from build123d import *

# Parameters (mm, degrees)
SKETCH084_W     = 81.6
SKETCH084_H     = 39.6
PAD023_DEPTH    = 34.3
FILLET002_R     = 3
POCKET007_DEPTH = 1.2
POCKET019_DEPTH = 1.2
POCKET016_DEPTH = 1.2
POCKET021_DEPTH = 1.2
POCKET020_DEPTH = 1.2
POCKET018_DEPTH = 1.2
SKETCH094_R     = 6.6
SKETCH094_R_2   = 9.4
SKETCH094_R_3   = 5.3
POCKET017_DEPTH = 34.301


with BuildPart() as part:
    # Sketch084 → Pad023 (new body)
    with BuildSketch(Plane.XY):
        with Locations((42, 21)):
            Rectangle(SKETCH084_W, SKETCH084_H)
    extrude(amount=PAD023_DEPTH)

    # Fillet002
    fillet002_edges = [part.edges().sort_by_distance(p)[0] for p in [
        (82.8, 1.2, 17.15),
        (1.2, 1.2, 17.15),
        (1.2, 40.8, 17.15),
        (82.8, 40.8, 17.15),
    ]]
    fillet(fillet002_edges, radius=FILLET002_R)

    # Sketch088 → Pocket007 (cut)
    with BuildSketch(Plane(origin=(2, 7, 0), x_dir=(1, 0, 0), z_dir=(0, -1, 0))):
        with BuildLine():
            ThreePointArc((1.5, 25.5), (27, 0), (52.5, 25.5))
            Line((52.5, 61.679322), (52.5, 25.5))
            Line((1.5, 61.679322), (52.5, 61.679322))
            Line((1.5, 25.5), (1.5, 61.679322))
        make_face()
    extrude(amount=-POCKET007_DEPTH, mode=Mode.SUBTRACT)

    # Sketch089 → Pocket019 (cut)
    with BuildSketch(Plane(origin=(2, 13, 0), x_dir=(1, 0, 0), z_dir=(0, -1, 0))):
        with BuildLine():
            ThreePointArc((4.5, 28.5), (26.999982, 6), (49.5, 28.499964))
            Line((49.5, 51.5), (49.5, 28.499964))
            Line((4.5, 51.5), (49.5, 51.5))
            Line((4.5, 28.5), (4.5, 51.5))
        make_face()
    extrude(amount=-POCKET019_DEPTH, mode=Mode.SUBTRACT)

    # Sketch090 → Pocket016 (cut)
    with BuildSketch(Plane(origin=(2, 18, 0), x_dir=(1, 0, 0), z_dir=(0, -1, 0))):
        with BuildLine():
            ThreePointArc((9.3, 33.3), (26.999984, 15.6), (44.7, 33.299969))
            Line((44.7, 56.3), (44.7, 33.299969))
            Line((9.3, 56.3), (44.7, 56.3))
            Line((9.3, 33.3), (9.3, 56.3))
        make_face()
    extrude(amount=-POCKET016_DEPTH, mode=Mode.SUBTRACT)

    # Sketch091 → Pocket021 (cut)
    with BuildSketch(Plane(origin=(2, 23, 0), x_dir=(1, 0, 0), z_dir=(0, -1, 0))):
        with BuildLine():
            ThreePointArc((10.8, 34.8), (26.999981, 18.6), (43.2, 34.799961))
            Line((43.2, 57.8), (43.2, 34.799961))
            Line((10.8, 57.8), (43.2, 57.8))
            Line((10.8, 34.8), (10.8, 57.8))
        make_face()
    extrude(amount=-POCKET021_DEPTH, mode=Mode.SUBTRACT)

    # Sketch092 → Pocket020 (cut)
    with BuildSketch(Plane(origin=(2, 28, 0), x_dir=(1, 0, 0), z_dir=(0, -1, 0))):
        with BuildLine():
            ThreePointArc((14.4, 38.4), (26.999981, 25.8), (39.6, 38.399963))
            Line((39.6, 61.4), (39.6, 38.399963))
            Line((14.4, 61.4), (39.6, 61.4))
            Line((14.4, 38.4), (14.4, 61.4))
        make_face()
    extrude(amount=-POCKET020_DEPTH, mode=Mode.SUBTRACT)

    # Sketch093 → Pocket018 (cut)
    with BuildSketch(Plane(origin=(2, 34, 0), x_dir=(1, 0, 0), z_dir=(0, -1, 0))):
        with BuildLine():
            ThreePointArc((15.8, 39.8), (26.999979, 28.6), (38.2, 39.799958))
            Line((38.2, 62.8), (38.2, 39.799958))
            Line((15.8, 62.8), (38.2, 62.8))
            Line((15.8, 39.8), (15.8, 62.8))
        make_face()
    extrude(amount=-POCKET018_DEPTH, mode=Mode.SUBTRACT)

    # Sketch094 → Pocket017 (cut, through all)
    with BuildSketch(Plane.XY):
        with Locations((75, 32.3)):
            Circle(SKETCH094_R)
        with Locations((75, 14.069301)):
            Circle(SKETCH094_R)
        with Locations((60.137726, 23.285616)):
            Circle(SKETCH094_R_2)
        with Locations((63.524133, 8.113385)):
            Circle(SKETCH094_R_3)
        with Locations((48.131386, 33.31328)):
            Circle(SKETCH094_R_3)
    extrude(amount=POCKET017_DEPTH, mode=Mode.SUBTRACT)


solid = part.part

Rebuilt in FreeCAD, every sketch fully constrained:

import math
import FreeCAD as App
import Part
import Sketcher

V = App.Vector


def edges_at(feature, points):
    """Names of the edges that pass closest to the given points."""
    edges = feature.Shape.Edges
    near = lambda p: min(range(len(edges)), key=lambda i: edges[i].distToShape(Part.Vertex(*p))[0])
    return sorted({f"Edge{near(p) + 1}" for p in points})


def add_polygon(sketch, points):
    """Adds a closed chain of lines whose ends are joined by coincident constraints."""
    first, n = sketch.GeometryCount, len(points)
    for a, b in zip(points, points[1:] + points[:1]):
        sketch.addGeometry(Part.LineSegment(App.Vector(*a, 0), App.Vector(*b, 0)), False)
    for i in range(n):
        sketch.addConstraint(Sketcher.Constraint("Coincident", first + i, 2, first + (i + 1) % n, 1))

doc = App.newDocument("Part")
params = doc.addObject("Spreadsheet::Sheet", "Params")
for row, (alias, value) in enumerate([
    ("sketch1_width", "81.6 mm"),
    ("sketch1_height", "39.6 mm"),
    ("pad1_length", "34.3 mm"),
    ("fillet_radius", "3 mm"),
    ("sketch2_radius", "25.5 mm"),
    ("pocket1_length", "1.2 mm"),
    ("sketch3_radius", "22.5 mm"),
    ("sketch3_height", "23 mm"),
    ("pocket2_length", "1.2 mm"),
    ("sketch4_radius", "17.7 mm"),
    ("sketch4_height", "23 mm"),
    ("pocket3_length", "1.2 mm"),
    ("sketch5_radius", "16.2 mm"),
    ("sketch5_height", "23 mm"),
    ("pocket4_length", "1.2 mm"),
    ("sketch6_radius", "12.6 mm"),
    ("sketch6_height", "23 mm"),
    ("pocket5_length", "1.2 mm"),
    ("sketch7_radius", "11.2 mm"),
    ("sketch7_height", "23 mm"),
    ("pocket6_length", "1.2 mm"),
    ("sketch8_diameter", "13.2 mm"),
    ("sketch8_diameter2", "18.8 mm"),
    ("sketch8_diameter3", "10.6 mm"),
], start=1):
    params.set(f"A{row}", alias)
    params.set(f"B{row}", "=" + value)
    params.setAlias(f"B{row}", alias)

body = doc.addObject("PartDesign::Body", "Body")

sketch1 = doc.addObject("Sketcher::SketchObject", "Sketch")
body.addObject(sketch1)
sketch1.AttachmentSupport = (doc.XY_Plane, [""])
sketch1.MapMode = "FlatFace"
add_polygon(sketch1, [(1.2, 40.8), (1.2, 1.2), (82.8, 1.2), (82.8, 40.8)])
sketch1.addConstraint([
    Sketcher.Constraint("Vertical", 0),
    Sketcher.Constraint("Horizontal", 1),
    Sketcher.Constraint("Vertical", 2),
    Sketcher.Constraint("Horizontal", 3),
    Sketcher.Constraint("DistanceX", 1, 1, 1, 2, 81.6),
    Sketcher.Constraint("DistanceY", 0, 2, 0, 1, 39.6),
    Sketcher.Constraint("DistanceX", -1, 1, 0, 2, 1.2),
    Sketcher.Constraint("DistanceY", -1, 1, 0, 2, 1.2),
])
sketch1.setExpression("Constraints[8]", "Params.sketch1_width")
sketch1.setExpression("Constraints[9]", "Params.sketch1_height")
pad1 = doc.addObject("PartDesign::Pad", "Pad")
body.addObject(pad1)
pad1.Profile = sketch1
pad1.setExpression("Length", "Params.pad1_length")
doc.recompute()

fillet = doc.addObject("PartDesign::Fillet", "Fillet")
body.addObject(fillet)
fillet.Base = (pad1, edges_at(pad1, [
    (82.8, 1.2, 17.15),
    (1.2, 1.2, 17.15),
    (1.2, 40.8, 17.15),
    (82.8, 40.8, 17.15),
]))
fillet.setExpression("Radius", "Params.fillet_radius")

sketch2 = doc.addObject("Sketcher::SketchObject", "Sketch001")
body.addObject(sketch2)
sketch2.AttachmentSupport = (doc.XZ_Plane, [""])
sketch2.MapMode = "FlatFace"
sketch2.AttachmentOffset = App.Placement(V(0, 0, -7), App.Rotation())
sketch2.addGeometry([
    Part.ArcOfCircle(Part.Circle(V(29, 25.5, 0), V(0, 0, 1), 25.5), math.radians(180), math.radians(360)),
    Part.LineSegment(V(54.5, 25.5, 0), V(54.5, 61.679322, 0)),
    Part.LineSegment(V(54.5, 61.679322, 0), V(3.5, 61.679322, 0)),
    Part.LineSegment(V(3.5, 61.679322, 0), V(3.5, 25.5, 0)),
], False)
sketch2.addConstraint([
    Sketcher.Constraint("Tangent", 0, 2, 1, 1),
    Sketcher.Constraint("Coincident", 1, 2, 2, 1),
    Sketcher.Constraint("Coincident", 2, 2, 3, 1),
    Sketcher.Constraint("Tangent", 3, 2, 0, 1),
    Sketcher.Constraint("Vertical", 1),
    Sketcher.Constraint("Horizontal", 2),
    Sketcher.Constraint("Vertical", 3),
    Sketcher.Constraint("Radius", 0, 25.5),
    Sketcher.Constraint("DistanceX", -1, 1, 0, 3, 29.0),
    Sketcher.Constraint("DistanceY", -1, 1, 0, 3, 25.5),
    Sketcher.Constraint("DistanceY", 1, 1, 1, 2, 36.179322),
])
sketch2.setExpression("Constraints[7]", "Params.sketch2_radius")
pocket1 = doc.addObject("PartDesign::Pocket", "Pocket")
body.addObject(pocket1)
pocket1.Profile = sketch2
pocket1.setExpression("Length", "Params.pocket1_length")

sketch3 = doc.addObject("Sketcher::SketchObject", "Sketch002")
body.addObject(sketch3)
sketch3.AttachmentSupport = (doc.XZ_Plane, [""])
sketch3.MapMode = "FlatFace"
sketch3.AttachmentOffset = App.Placement(V(0, 0, -13), App.Rotation())
sketch3.addGeometry([
    Part.ArcOfCircle(Part.Circle(V(29, 28.5, 0), V(0, 0, 1), 22.5), math.radians(180), math.radians(359.999908)),
    Part.LineSegment(V(51.5, 28.499964, 0), V(51.5, 51.5, 0)),
    Part.LineSegment(V(51.5, 51.5, 0), V(6.5, 51.5, 0)),
    Part.LineSegment(V(6.5, 51.5, 0), V(6.5, 28.5, 0)),
], False)
sketch3.addConstraint([
    Sketcher.Constraint("Coincident", 0, 2, 1, 1),
    Sketcher.Constraint("Coincident", 1, 2, 2, 1),
    Sketcher.Constraint("Coincident", 2, 2, 3, 1),
    Sketcher.Constraint("Coincident", 3, 2, 0, 1),
    Sketcher.Constraint("Vertical", 1),
    Sketcher.Constraint("Horizontal", 2),
    Sketcher.Constraint("Vertical", 3),
    Sketcher.Constraint("Radius", 0, 22.5),
    Sketcher.Constraint("DistanceY", 3, 2, 3, 1, 23.0),
    Sketcher.Constraint("DistanceX", -1, 1, 0, 3, 29.0),
    Sketcher.Constraint("DistanceY", 0, 3, 1, 2, 23.0),
    Sketcher.Constraint("DistanceY", -1, 1, 0, 3, 28.5),
    Sketcher.Constraint("DistanceY", 1, 1, 1, 2, 23.000036),
])
sketch3.setExpression("Constraints[7]", "Params.sketch3_radius")
sketch3.setExpression("Constraints[8]", "Params.sketch3_height")
pocket2 = doc.addObject("PartDesign::Pocket", "Pocket001")
body.addObject(pocket2)
pocket2.Profile = sketch3
pocket2.setExpression("Length", "Params.pocket2_length")

sketch4 = doc.addObject("Sketcher::SketchObject", "Sketch003")
body.addObject(sketch4)
sketch4.AttachmentSupport = (doc.XZ_Plane, [""])
sketch4.MapMode = "FlatFace"
sketch4.AttachmentOffset = App.Placement(V(0, 0, -18), App.Rotation())
sketch4.addGeometry([
    Part.ArcOfCircle(Part.Circle(V(29, 33.3, 0), V(0, 0, 1), 17.7), math.radians(180), math.radians(359.9999)),
    Part.LineSegment(V(46.7, 33.299969, 0), V(46.7, 56.3, 0)),
    Part.LineSegment(V(46.7, 56.3, 0), V(11.3, 56.3, 0)),
    Part.LineSegment(V(11.3, 56.3, 0), V(11.3, 33.3, 0)),
], False)
sketch4.addConstraint([
    Sketcher.Constraint("Coincident", 0, 2, 1, 1),
    Sketcher.Constraint("Coincident", 1, 2, 2, 1),
    Sketcher.Constraint("Coincident", 2, 2, 3, 1),
    Sketcher.Constraint("Coincident", 3, 2, 0, 1),
    Sketcher.Constraint("Vertical", 1),
    Sketcher.Constraint("Horizontal", 2),
    Sketcher.Constraint("Vertical", 3),
    Sketcher.Constraint("Radius", 0, 17.7),
    Sketcher.Constraint("DistanceY", 3, 2, 3, 1, 23.0),
    Sketcher.Constraint("DistanceX", -1, 1, 0, 3, 29.0),
    Sketcher.Constraint("DistanceY", 0, 3, 1, 2, 23.0),
    Sketcher.Constraint("DistanceY", -1, 1, 0, 3, 33.3),
    Sketcher.Constraint("DistanceY", 1, 1, 1, 2, 23.000031),
])
sketch4.setExpression("Constraints[7]", "Params.sketch4_radius")
sketch4.setExpression("Constraints[8]", "Params.sketch4_height")
pocket3 = doc.addObject("PartDesign::Pocket", "Pocket002")
body.addObject(pocket3)
pocket3.Profile = sketch4
pocket3.setExpression("Length", "Params.pocket3_length")

sketch5 = doc.addObject("Sketcher::SketchObject", "Sketch004")
body.addObject(sketch5)
sketch5.AttachmentSupport = (doc.XZ_Plane, [""])
sketch5.MapMode = "FlatFace"
sketch5.AttachmentOffset = App.Placement(V(0, 0, -23), App.Rotation())
sketch5.addGeometry([
    Part.ArcOfCircle(Part.Circle(V(29, 34.8, 0), V(0, 0, 1), 16.2), math.radians(180), math.radians(359.999862)),
    Part.LineSegment(V(45.2, 34.799961, 0), V(45.2, 57.8, 0)),
    Part.LineSegment(V(45.2, 57.8, 0), V(12.8, 57.8, 0)),
    Part.LineSegment(V(12.8, 57.8, 0), V(12.8, 34.8, 0)),
], False)
sketch5.addConstraint([
    Sketcher.Constraint("Coincident", 0, 2, 1, 1),
    Sketcher.Constraint("Coincident", 1, 2, 2, 1),
    Sketcher.Constraint("Coincident", 2, 2, 3, 1),
    Sketcher.Constraint("Tangent", 3, 2, 0, 1),
    Sketcher.Constraint("Vertical", 1),
    Sketcher.Constraint("Horizontal", 2),
    Sketcher.Constraint("Vertical", 3),
    Sketcher.Constraint("Radius", 0, 16.2),
    Sketcher.Constraint("DistanceY", 3, 2, 3, 1, 23.0),
    Sketcher.Constraint("DistanceX", -1, 1, 0, 3, 29.0),
    Sketcher.Constraint("DistanceY", -1, 1, 0, 3, 34.8),
    Sketcher.Constraint("DistanceY", 1, 1, 1, 2, 23.000039),
])
sketch5.setExpression("Constraints[7]", "Params.sketch5_radius")
sketch5.setExpression("Constraints[8]", "Params.sketch5_height")
pocket4 = doc.addObject("PartDesign::Pocket", "Pocket003")
body.addObject(pocket4)
pocket4.Profile = sketch5
pocket4.setExpression("Length", "Params.pocket4_length")

sketch6 = doc.addObject("Sketcher::SketchObject", "Sketch005")
body.addObject(sketch6)
sketch6.AttachmentSupport = (doc.XZ_Plane, [""])
sketch6.MapMode = "FlatFace"
sketch6.AttachmentOffset = App.Placement(V(0, 0, -28), App.Rotation())
sketch6.addGeometry([
    Part.ArcOfCircle(Part.Circle(V(29, 38.4, 0), V(0, 0, 1), 12.6), math.radians(180), math.radians(359.999832)),
    Part.LineSegment(V(41.6, 38.399963, 0), V(41.6, 61.4, 0)),
    Part.LineSegment(V(41.6, 61.4, 0), V(16.4, 61.4, 0)),
    Part.LineSegment(V(16.4, 61.4, 0), V(16.4, 38.4, 0)),
], False)
sketch6.addConstraint([
    Sketcher.Constraint("Coincident", 0, 2, 1, 1),
    Sketcher.Constraint("Coincident", 1, 2, 2, 1),
    Sketcher.Constraint("Coincident", 2, 2, 3, 1),
    Sketcher.Constraint("Tangent", 3, 2, 0, 1),
    Sketcher.Constraint("Vertical", 1),
    Sketcher.Constraint("Horizontal", 2),
    Sketcher.Constraint("Vertical", 3),
    Sketcher.Constraint("Radius", 0, 12.6),
    Sketcher.Constraint("DistanceY", 3, 2, 3, 1, 23.0),
    Sketcher.Constraint("DistanceX", -1, 1, 0, 3, 29.0),
    Sketcher.Constraint("DistanceY", -1, 1, 0, 3, 38.4),
    Sketcher.Constraint("DistanceY", 1, 1, 1, 2, 23.000037),
])
sketch6.setExpression("Constraints[7]", "Params.sketch6_radius")
sketch6.setExpression("Constraints[8]", "Params.sketch6_height")
pocket5 = doc.addObject("PartDesign::Pocket", "Pocket004")
body.addObject(pocket5)
pocket5.Profile = sketch6
pocket5.setExpression("Length", "Params.pocket5_length")

sketch7 = doc.addObject("Sketcher::SketchObject", "Sketch006")
body.addObject(sketch7)
sketch7.AttachmentSupport = (doc.XZ_Plane, [""])
sketch7.MapMode = "FlatFace"
sketch7.AttachmentOffset = App.Placement(V(0, 0, -34), App.Rotation())
sketch7.addGeometry([
    Part.ArcOfCircle(Part.Circle(V(29, 39.8, 0), V(0, 0, 1), 11.2), math.radians(180), math.radians(359.999785)),
    Part.LineSegment(V(40.2, 39.799958, 0), V(40.2, 62.8, 0)),
    Part.LineSegment(V(40.2, 62.8, 0), V(17.8, 62.8, 0)),
    Part.LineSegment(V(17.8, 62.8, 0), V(17.8, 39.8, 0)),
], False)
sketch7.addConstraint([
    Sketcher.Constraint("Coincident", 0, 2, 1, 1),
    Sketcher.Constraint("Coincident", 1, 2, 2, 1),
    Sketcher.Constraint("Coincident", 2, 2, 3, 1),
    Sketcher.Constraint("Tangent", 3, 2, 0, 1),
    Sketcher.Constraint("Vertical", 1),
    Sketcher.Constraint("Horizontal", 2),
    Sketcher.Constraint("Vertical", 3),
    Sketcher.Constraint("Radius", 0, 11.2),
    Sketcher.Constraint("DistanceY", 3, 2, 3, 1, 23.0),
    Sketcher.Constraint("DistanceX", -1, 1, 0, 3, 29.0),
    Sketcher.Constraint("DistanceY", -1, 1, 0, 3, 39.8),
    Sketcher.Constraint("DistanceY", 1, 1, 1, 2, 23.000042),
])
sketch7.setExpression("Constraints[7]", "Params.sketch7_radius")
sketch7.setExpression("Constraints[8]", "Params.sketch7_height")
pocket6 = doc.addObject("PartDesign::Pocket", "Pocket005")
body.addObject(pocket6)
pocket6.Profile = sketch7
pocket6.setExpression("Length", "Params.pocket6_length")

sketch8 = doc.addObject("Sketcher::SketchObject", "Sketch007")
body.addObject(sketch8)
sketch8.AttachmentSupport = (doc.XY_Plane, [""])
sketch8.MapMode = "FlatFace"
sketch8.addGeometry([
    Part.Circle(V(75, 32.3, 0), V(0, 0, 1), 6.6),
    Part.Circle(V(75, 14.069301, 0), V(0, 0, 1), 6.6),
    Part.Circle(V(60.137726, 23.285616, 0), V(0, 0, 1), 9.4),
    Part.Circle(V(63.524133, 8.113385, 0), V(0, 0, 1), 5.3),
    Part.Circle(V(48.131386, 33.31328, 0), V(0, 0, 1), 5.3),
], False)
sketch8.addConstraint([
    Sketcher.Constraint("Equal", 0, 1),
    Sketcher.Constraint("Equal", 3, 4),
    Sketcher.Constraint("Vertical", 0, 3, 1, 3),
    Sketcher.Constraint("Diameter", 0, 13.2),
    Sketcher.Constraint("Diameter", 2, 18.8),
    Sketcher.Constraint("Diameter", 3, 10.6),
    Sketcher.Constraint("DistanceX", -1, 1, 0, 3, 75.0),
    Sketcher.Constraint("DistanceY", -1, 1, 0, 3, 32.3),
    Sketcher.Constraint("DistanceY", -1, 1, 1, 3, 14.069301),
    Sketcher.Constraint("DistanceY", -1, 1, 4, 3, 33.31328),
    Sketcher.Constraint("DistanceY", 3, 3, 2, 3, 15.172231),
    Sketcher.Constraint("DistanceX", 4, 3, 2, 3, 12.00634),
    Sketcher.Constraint("DistanceX", -1, 1, 2, 3, 60.137726),
    Sketcher.Constraint("DistanceY", -1, 1, 2, 3, 23.285616),
    Sketcher.Constraint("DistanceX", -1, 1, 3, 3, 63.524133),
])
sketch8.setExpression("Constraints[3]", "Params.sketch8_diameter")
sketch8.setExpression("Constraints[4]", "Params.sketch8_diameter2")
sketch8.setExpression("Constraints[5]", "Params.sketch8_diameter3")
pocket7 = doc.addObject("PartDesign::Pocket", "Pocket006")
body.addObject(pocket7)
pocket7.Profile = sketch8
pocket7.Type = "ThroughAll"
pocket7.Reversed = True

doc.recompute()
